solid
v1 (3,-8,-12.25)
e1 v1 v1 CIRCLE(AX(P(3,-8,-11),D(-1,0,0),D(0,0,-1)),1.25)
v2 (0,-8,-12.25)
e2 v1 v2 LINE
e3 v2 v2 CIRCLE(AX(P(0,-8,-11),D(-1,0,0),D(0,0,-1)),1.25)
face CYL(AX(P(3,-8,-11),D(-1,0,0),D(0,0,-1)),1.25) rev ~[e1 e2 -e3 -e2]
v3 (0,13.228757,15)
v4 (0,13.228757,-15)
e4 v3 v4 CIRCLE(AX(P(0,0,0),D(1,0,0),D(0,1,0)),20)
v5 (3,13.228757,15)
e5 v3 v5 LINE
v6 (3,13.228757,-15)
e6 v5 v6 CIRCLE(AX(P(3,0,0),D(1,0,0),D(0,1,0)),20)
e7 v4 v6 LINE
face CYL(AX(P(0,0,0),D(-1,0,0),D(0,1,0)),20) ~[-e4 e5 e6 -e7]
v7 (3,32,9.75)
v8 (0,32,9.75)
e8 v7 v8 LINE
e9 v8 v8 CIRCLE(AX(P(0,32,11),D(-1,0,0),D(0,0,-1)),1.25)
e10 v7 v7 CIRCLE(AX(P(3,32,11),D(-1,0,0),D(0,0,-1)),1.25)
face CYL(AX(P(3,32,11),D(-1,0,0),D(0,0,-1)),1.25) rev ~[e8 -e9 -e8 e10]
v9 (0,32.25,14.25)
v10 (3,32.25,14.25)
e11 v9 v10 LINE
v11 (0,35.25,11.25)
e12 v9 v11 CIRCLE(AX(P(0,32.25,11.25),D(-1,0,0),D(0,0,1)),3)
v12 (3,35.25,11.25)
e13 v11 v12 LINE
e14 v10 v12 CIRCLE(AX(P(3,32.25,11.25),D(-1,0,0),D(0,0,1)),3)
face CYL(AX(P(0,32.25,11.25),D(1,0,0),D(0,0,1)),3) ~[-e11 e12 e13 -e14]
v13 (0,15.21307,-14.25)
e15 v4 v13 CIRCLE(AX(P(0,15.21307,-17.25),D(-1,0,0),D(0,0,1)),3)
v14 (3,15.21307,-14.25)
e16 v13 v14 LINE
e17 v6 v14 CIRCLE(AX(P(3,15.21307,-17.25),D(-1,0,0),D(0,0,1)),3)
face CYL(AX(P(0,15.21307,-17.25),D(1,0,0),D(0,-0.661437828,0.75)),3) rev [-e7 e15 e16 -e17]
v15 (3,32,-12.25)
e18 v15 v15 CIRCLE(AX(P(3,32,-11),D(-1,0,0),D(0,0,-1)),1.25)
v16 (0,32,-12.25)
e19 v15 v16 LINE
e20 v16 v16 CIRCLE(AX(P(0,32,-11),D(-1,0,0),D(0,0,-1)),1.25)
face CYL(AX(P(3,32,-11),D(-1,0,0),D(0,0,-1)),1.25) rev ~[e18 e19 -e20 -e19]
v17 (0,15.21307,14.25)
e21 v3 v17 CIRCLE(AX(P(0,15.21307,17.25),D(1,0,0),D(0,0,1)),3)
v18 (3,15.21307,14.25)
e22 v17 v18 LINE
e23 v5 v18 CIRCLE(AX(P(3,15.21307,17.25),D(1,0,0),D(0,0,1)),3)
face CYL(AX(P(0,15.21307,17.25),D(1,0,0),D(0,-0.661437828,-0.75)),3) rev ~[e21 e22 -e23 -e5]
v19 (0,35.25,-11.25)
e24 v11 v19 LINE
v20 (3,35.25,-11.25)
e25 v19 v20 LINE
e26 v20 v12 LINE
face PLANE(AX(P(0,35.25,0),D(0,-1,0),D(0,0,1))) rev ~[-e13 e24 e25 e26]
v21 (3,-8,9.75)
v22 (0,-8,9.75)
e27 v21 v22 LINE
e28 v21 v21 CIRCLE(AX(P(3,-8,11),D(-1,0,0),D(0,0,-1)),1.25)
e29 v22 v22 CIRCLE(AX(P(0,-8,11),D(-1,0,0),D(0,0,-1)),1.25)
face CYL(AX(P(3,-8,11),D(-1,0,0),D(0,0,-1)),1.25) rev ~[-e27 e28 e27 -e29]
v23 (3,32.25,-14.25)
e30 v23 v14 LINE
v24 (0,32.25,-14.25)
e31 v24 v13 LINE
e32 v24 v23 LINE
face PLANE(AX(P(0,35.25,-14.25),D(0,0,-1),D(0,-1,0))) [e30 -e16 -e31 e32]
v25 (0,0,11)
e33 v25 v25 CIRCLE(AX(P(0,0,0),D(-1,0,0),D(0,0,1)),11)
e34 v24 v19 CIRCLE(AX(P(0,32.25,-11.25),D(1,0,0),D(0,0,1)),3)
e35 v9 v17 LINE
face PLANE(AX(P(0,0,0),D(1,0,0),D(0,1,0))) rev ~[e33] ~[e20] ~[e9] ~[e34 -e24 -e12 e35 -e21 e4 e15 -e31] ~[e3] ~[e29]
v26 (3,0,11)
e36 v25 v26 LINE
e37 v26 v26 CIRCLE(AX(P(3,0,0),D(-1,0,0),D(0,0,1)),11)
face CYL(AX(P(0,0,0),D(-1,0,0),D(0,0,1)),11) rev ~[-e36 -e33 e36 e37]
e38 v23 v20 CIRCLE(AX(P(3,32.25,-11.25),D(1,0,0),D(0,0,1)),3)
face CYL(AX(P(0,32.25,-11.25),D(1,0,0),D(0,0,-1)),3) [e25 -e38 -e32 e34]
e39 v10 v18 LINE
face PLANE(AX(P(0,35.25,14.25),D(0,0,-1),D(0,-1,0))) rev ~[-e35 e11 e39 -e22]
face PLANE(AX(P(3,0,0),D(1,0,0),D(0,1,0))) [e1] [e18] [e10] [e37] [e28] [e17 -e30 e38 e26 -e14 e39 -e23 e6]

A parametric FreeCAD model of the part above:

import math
import FreeCAD as App
import Part
import Sketcher
from FreeCAD import Vector
Q = App.Units.Quantity


def edges_at(feature, points):
    """Names of the edges that pass closest to the given points."""
    edges = feature.Shape.Edges
    near = lambda p: min(range(len(edges)), key=lambda i: edges[i].distToShape(Part.Vertex(*p))[0])
    return sorted({f"Edge{near(p) + 1}" for p in points})

doc = App.newDocument("Part")
body = doc.addObject("PartDesign::Body", "Body")

# Sketch on YZ plane
sketch1 = body.newObject("Sketcher::SketchObject", "Sketch")
sketch1.AttachmentSupport = (doc.getObject("YZ_Plane"), [""])
sketch1.MapMode = "FlatFace"
sketch1.addGeometry(Part.ArcOfCircle(Part.Circle(Vector(0, 0, 0), Vector(0, 0, 1), 20), math.radians(45), math.radians(315)), False)
sketch1.addGeometry(Part.LineSegment(Vector(14, -14, 0), Vector(35, -14, 0)), False)
sketch1.addGeometry(Part.LineSegment(Vector(35, -14, 0), Vector(35, 14, 0)), False)
sketch1.addGeometry(Part.LineSegment(Vector(35, 14, 0), Vector(14, 14, 0)), False)
sketch1.addConstraint(Sketcher.Constraint("Coincident", 0, 2, 1, 1))
sketch1.addConstraint(Sketcher.Constraint("Coincident", 1, 2, 2, 1))
sketch1.addConstraint(Sketcher.Constraint("Coincident", 2, 2, 3, 1))
sketch1.addConstraint(Sketcher.Constraint("Coincident", 3, 2, 0, 1))
sketch1.addConstraint(Sketcher.Constraint("Horizontal", 1))
sketch1.addConstraint(Sketcher.Constraint("Vertical", 2))
sketch1.addConstraint(Sketcher.Constraint("Horizontal", 3))
sketch1.addConstraint(Sketcher.Constraint("Coincident", 0, 3, -1, 1))
sketch1.addConstraint(Sketcher.Constraint("Vertical", 0, 2, 3, 2))
sketch1.addConstraint(Sketcher.Constraint("Radius", 0, Q("20 mm")))
sketch1.addConstraint(Sketcher.Constraint("DistanceY", 0, 2, -1, 1, Q("14.25 mm")))
sketch1.addConstraint(Sketcher.Constraint("DistanceX", -1, 1, 1, 2, Q("35.25 mm")))
pad1 = body.newObject("PartDesign::Pad", "Pad")
pad1.Profile = sketch1
pad1.Length = 3

# Sketch on YZ plane
sketch2 = body.newObject("Sketcher::SketchObject", "Sketch001")
sketch2.AttachmentSupport = (doc.getObject("YZ_Plane"), [""])
sketch2.MapMode = "FlatFace"
sketch2.AttachmentOffset = App.Placement(Vector(0, 0, 3), App.Rotation())
sketch2.addGeometry(Part.Circle(Vector(-8, 11, 0), Vector(0, 0, 1), 1.2), False)
sketch2.addGeometry(Part.Circle(Vector(-8, -11, 0), Vector(0, 0, 1), 1.2), False)
sketch2.addGeometry(Part.Circle(Vector(32, -11, 0), Vector(0, 0, 1), 1.2), False)
sketch2.addGeometry(Part.Circle(Vector(32, 11, 0), Vector(0, 0, 1), 1.2), False)
sketch2.addConstraint(Sketcher.Constraint("Equal", 0, 1))
sketch2.addConstraint(Sketcher.Constraint("Equal", 1, 2))
sketch2.addConstraint(Sketcher.Constraint("Equal", 2, 3))
sketch2.addConstraint(Sketcher.Constraint("Symmetric", 0, 3, 1, 3, -1))
sketch2.addConstraint(Sketcher.Constraint("Symmetric", 2, 3, 3, 3, -1))
sketch2.addConstraint(Sketcher.Constraint("Horizontal", 1, 3, 2, 3))
sketch2.addConstraint(Sketcher.Constraint("Diameter", 0, Q("2.5 mm")))
sketch2.addConstraint(Sketcher.Constraint("DistanceX", 0, 3, -1, 1, Q("8 mm")))
sketch2.addConstraint(Sketcher.Constraint("DistanceY", -1, 1, 0, 3, Q("11 mm")))
sketch2.addConstraint(Sketcher.Constraint("DistanceX", -1, 1, 2, 3, Q("32 mm")))
doc.recompute()
hole = body.newObject("PartDesign::Hole", "Hole")
hole.Profile = sketch2
hole.ThreadType = "None"
hole.Diameter = 2.5
hole.DepthType = "ThroughAll"

# Sketch on YZ plane
sketch3 = body.newObject("Sketcher::SketchObject", "Sketch002")
sketch3.AttachmentSupport = (doc.getObject("YZ_Plane"), [""])
sketch3.MapMode = "FlatFace"
sketch3.addGeometry(Part.Circle(Vector(0, 0, 0), Vector(0, 0, 1), 11), False)
sketch3.addConstraint(Sketcher.Constraint("Coincident", 0, 3, -1, 1))
sketch3.addConstraint(Sketcher.Constraint("Diameter", 0, Q("22 mm")))
pocket1 = body.newObject("PartDesign::Pocket", "Pocket")
pocket1.Profile = sketch3
pocket1.Length = 3
pocket1.Reversed = True
doc.recompute()

fillet = body.newObject("PartDesign::Fillet", "Fillet")
fillet.Base = (pocket1, edges_at(pocket1, [
    (1.5, 35.25, 14.25),
    (1.5, 14.033, 14.25),
    (1.5, 35.25, -14.25),
    (1.5, 14.033, -14.25),
]))
fillet.Radius = 3

doc.recompute()
